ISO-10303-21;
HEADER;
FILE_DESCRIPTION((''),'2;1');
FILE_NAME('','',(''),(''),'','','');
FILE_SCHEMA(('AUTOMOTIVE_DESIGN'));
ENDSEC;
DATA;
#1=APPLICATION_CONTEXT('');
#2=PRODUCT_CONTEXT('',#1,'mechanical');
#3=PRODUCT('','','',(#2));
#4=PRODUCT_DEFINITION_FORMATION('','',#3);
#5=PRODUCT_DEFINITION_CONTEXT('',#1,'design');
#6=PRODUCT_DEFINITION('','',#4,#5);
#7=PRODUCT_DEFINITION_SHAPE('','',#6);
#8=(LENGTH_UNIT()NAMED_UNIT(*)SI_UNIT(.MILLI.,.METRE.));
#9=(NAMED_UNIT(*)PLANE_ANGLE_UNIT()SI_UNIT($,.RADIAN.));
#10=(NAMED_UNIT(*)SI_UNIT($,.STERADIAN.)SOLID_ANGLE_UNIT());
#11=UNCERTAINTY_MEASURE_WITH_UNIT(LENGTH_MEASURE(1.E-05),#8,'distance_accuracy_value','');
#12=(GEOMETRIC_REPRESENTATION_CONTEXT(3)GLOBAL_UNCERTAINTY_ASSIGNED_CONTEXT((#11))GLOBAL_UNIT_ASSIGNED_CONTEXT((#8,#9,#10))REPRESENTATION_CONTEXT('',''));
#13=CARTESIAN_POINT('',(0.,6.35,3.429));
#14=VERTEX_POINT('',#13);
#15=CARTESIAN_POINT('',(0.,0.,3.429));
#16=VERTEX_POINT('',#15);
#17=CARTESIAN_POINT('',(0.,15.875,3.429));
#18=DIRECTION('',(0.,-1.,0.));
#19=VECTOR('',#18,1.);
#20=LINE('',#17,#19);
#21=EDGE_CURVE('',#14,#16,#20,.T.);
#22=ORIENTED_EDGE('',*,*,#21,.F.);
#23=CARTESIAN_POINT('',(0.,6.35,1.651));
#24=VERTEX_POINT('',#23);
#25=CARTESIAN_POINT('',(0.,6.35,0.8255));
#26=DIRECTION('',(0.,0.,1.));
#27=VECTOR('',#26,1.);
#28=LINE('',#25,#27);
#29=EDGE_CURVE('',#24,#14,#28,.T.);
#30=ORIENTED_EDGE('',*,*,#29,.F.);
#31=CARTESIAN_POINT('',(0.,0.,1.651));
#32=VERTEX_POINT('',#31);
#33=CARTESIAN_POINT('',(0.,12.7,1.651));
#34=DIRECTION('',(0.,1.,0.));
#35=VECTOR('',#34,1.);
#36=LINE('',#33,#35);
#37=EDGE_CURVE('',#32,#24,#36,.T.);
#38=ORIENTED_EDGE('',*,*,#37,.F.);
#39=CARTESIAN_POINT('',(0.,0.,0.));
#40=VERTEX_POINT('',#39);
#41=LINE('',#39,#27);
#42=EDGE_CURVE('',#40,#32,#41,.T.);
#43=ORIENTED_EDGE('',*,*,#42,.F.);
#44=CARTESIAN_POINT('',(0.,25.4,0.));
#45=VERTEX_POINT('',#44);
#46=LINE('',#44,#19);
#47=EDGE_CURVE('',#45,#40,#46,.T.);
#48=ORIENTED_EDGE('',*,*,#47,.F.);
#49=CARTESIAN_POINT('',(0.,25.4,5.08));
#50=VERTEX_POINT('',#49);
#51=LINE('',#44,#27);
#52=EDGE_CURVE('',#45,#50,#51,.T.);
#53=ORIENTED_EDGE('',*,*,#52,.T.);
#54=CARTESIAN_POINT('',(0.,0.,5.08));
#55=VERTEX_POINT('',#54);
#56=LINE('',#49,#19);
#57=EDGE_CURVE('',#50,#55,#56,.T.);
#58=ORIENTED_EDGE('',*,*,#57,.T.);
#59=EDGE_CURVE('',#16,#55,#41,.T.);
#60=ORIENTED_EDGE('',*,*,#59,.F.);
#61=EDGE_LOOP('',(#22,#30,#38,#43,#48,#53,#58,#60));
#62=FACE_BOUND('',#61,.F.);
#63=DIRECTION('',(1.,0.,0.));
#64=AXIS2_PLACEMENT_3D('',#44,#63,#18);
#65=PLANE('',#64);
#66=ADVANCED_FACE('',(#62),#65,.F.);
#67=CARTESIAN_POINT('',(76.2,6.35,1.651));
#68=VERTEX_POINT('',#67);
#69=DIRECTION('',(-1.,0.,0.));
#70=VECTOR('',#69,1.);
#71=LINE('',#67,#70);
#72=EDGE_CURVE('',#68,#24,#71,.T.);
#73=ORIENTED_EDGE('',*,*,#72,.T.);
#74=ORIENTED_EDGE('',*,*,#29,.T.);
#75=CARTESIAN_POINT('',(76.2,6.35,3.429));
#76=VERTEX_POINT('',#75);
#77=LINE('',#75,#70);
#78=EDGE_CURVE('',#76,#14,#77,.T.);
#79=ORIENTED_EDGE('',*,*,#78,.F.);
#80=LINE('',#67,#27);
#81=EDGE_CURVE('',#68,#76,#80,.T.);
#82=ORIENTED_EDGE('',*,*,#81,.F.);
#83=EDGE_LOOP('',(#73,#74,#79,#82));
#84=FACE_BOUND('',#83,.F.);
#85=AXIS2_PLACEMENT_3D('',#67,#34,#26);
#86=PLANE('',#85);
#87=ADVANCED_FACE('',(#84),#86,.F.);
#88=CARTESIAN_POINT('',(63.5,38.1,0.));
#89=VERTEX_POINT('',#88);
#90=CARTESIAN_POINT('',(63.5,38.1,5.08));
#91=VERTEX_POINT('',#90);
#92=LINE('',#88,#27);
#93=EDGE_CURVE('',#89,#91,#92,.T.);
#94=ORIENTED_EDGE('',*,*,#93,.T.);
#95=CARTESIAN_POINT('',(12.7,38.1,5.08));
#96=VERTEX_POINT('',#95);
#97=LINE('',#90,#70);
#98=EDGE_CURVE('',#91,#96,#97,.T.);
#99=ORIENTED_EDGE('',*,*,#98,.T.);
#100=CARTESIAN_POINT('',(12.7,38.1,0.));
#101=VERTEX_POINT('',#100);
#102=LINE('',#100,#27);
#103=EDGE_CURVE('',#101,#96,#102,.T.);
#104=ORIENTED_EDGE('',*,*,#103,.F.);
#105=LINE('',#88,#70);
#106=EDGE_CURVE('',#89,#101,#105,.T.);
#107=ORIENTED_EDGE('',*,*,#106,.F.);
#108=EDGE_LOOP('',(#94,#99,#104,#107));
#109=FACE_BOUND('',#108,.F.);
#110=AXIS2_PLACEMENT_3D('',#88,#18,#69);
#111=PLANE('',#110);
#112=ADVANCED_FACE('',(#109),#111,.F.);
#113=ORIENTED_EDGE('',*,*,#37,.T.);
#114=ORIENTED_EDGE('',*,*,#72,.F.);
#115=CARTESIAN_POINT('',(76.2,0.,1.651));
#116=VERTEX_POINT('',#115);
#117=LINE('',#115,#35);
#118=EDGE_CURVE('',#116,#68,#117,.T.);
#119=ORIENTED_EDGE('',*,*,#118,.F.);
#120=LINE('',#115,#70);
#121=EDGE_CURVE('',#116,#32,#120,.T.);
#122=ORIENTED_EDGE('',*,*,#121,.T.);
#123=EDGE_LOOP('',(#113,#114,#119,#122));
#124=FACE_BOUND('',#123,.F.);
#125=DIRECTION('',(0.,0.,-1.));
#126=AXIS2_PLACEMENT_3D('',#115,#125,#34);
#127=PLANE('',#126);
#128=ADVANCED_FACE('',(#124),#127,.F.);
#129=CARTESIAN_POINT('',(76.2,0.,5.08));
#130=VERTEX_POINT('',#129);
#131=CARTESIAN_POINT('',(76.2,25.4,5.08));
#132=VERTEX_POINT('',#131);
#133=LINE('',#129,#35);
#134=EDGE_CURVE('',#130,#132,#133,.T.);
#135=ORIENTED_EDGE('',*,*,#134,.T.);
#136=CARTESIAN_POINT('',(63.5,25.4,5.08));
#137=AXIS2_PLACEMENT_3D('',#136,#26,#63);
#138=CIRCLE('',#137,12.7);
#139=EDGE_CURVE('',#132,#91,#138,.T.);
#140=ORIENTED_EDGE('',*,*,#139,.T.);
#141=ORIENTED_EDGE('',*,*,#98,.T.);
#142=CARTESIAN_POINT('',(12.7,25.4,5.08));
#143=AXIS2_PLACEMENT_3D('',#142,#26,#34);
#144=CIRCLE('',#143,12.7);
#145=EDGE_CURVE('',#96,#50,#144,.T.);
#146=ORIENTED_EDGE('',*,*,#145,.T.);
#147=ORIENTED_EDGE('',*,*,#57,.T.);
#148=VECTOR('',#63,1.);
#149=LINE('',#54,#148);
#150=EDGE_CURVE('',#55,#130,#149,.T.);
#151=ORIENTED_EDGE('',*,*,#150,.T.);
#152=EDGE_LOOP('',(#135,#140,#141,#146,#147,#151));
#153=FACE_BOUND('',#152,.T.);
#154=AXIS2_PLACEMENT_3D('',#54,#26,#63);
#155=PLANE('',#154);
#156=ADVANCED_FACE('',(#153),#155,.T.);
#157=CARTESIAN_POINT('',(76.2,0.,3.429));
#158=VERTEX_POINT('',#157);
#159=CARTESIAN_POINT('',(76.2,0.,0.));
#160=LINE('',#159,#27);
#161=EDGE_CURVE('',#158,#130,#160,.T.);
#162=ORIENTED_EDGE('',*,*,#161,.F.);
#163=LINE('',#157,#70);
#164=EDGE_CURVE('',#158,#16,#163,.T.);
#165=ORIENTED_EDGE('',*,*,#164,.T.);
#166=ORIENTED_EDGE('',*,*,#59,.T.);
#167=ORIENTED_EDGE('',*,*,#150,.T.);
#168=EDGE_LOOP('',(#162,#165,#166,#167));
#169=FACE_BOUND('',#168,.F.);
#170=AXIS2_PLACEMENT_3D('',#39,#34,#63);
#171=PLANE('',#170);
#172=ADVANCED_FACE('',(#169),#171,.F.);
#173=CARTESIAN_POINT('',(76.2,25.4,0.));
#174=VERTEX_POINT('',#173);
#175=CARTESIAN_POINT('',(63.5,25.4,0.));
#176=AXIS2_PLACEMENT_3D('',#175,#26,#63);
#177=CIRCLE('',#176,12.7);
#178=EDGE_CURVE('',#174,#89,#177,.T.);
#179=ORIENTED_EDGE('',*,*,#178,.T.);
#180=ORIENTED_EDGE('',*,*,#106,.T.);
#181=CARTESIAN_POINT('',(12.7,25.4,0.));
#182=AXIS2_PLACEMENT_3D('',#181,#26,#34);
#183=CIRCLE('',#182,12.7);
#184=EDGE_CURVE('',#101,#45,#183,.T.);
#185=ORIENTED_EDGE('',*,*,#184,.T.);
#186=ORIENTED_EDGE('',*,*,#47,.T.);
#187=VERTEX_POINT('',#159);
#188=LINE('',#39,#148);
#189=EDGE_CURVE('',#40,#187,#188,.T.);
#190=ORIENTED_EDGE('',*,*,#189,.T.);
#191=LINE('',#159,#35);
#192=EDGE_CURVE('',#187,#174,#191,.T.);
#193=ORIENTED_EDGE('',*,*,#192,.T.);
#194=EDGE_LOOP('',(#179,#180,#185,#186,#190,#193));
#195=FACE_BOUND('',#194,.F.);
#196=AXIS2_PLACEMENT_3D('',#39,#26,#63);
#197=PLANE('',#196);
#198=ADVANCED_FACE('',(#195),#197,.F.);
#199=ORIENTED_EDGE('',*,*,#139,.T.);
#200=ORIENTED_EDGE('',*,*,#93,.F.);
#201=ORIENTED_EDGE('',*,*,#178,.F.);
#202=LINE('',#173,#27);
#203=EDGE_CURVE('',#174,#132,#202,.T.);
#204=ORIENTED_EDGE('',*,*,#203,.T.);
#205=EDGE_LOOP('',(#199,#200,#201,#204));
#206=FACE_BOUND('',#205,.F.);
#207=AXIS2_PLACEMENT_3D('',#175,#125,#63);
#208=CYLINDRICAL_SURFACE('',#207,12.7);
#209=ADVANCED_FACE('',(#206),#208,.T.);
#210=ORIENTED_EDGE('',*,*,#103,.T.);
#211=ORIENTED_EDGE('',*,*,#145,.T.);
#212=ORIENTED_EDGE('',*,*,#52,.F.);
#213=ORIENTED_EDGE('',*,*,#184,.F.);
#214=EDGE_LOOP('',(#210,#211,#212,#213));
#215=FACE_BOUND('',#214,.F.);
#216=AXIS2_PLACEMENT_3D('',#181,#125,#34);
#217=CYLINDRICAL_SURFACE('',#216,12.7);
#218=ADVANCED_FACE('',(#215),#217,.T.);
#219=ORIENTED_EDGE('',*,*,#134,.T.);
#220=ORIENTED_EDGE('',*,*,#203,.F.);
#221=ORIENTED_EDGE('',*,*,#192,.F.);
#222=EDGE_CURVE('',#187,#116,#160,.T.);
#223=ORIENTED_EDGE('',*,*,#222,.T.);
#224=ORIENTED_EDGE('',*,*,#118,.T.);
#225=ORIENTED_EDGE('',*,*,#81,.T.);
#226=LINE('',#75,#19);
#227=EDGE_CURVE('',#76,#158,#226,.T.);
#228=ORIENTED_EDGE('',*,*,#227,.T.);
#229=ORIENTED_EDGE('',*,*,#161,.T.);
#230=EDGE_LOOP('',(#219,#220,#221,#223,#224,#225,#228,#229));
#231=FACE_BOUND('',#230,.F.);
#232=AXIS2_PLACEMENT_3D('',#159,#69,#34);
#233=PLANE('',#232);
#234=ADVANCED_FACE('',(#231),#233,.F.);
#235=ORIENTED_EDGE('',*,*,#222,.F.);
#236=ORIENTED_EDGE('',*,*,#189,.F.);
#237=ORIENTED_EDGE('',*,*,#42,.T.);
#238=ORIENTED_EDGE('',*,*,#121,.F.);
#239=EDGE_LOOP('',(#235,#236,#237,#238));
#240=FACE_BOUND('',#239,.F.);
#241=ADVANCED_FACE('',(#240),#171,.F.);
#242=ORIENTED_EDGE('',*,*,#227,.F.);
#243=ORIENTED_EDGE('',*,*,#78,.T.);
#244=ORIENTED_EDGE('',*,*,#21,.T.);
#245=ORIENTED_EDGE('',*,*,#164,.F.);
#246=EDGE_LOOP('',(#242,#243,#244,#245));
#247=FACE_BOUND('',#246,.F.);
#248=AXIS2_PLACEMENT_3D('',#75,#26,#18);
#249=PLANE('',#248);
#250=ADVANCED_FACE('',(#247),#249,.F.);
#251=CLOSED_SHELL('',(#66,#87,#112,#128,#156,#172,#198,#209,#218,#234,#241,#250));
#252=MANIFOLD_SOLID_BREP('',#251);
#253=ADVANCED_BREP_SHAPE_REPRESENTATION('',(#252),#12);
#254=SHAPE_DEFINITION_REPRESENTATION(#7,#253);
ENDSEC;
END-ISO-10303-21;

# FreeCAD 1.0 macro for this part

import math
import FreeCAD as App
import Part
import Sketcher
Q = App.Units.Quantity

doc = App.newDocument("Part")
body = doc.addObject("PartDesign::Body", "Body")

sketch1 = body.newObject("Sketcher::SketchObject", "Sketch")
sketch1.AttachmentSupport = (doc.getObject("XY_Plane"), [""])
sketch1.MapMode = "FlatFace"
sketch1.addGeometry([
    Part.LineSegment(App.Vector(0, 25.4, 0), App.Vector(0, 0, 0)),
    Part.LineSegment(App.Vector(0, 0, 0), App.Vector(76.2, 0, 0)),
    Part.LineSegment(App.Vector(76.2, 0, 0), App.Vector(76.2, 25.4, 0)),
    Part.ArcOfCircle(Part.Circle(App.Vector(63.5, 25.4, 0), App.Vector(0, 0, 1), 12.7), math.radians(0), math.radians(90)),
    Part.LineSegment(App.Vector(63.5, 38.1, 0), App.Vector(12.7, 38.1, 0)),
    Part.ArcOfCircle(Part.Circle(App.Vector(12.7, 25.4, 0), App.Vector(0, 0, 1), 12.7), math.radians(90), math.radians(180)),
], False)
sketch1.addConstraint([
    Sketcher.Constraint("Coincident", 0, 2, 1, 1),
    Sketcher.Constraint("Coincident", 1, 2, 2, 1),
    Sketcher.Constraint("Tangent", 2, 2, 3, 1),
    Sketcher.Constraint("Tangent", 3, 2, 4, 1),
    Sketcher.Constraint("Tangent", 4, 2, 5, 1),
    Sketcher.Constraint("Tangent", 5, 2, 0, 1),
    Sketcher.Constraint("Vertical", 0),
    Sketcher.Constraint("Horizontal", 1),
    Sketcher.Constraint("Vertical", 2),
    Sketcher.Constraint("Horizontal", 4),
    Sketcher.Constraint("Coincident", 0, 2, -1, 1),
    Sketcher.Constraint("Equal", 3, 5),
    Sketcher.Constraint("Radius", 3, Q("0.5 in")),
    Sketcher.Constraint("DistanceX", 1, 1, 1, 2, Q("3 in")),
    Sketcher.Constraint("DistanceY", -1, 1, 3, 2, Q("1.5 in")),
])
pad1 = body.newObject("PartDesign::Pad", "Pad")
pad1.Profile = sketch1
pad1.Length = Q("0.2 in")

sketch2 = body.newObject("Sketcher::SketchObject", "Sketch001")
sketch2.AttachmentSupport = (doc.getObject("YZ_Plane"), [""])
sketch2.MapMode = "FlatFace"
sketch2.AttachmentOffset = App.Placement(App.Vector(0, 0, 3 * 25.4), App.Rotation())
sketch2.addGeometry([
    Part.LineSegment(App.Vector(0, 3.429, 0), App.Vector(0, 1.651, 0)),
    Part.LineSegment(App.Vector(0, 1.651, 0), App.Vector(6.35, 1.651, 0)),
    Part.LineSegment(App.Vector(6.35, 1.651, 0), App.Vector(6.35, 3.429, 0)),
    Part.LineSegment(App.Vector(6.35, 3.429, 0), App.Vector(0, 3.429, 0)),
], False)
sketch2.addConstraint([
    Sketcher.Constraint("Coincident", 0, 2, 1, 1),
    Sketcher.Constraint("Coincident", 1, 2, 2, 1),
    Sketcher.Constraint("Coincident", 2, 2, 3, 1),
    Sketcher.Constraint("Coincident", 3, 2, 0, 1),
    Sketcher.Constraint("Vertical", 0),
    Sketcher.Constraint("Horizontal", 1),
    Sketcher.Constraint("Vertical", 2),
    Sketcher.Constraint("Horizontal", 3),
    Sketcher.Constraint("PointOnObject", 0, 2, -2),
    Sketcher.Constraint("DistanceX", 1, 1, 1, 2, Q("0.25 in")),
    Sketcher.Constraint("DistanceY", 0, 2, 0, 1, Q("0.07 in")),
    Sketcher.Constraint("DistanceY", -1, 1, 0, 2, Q("0.065 in")),
])
pocket1 = body.newObject("PartDesign::Pocket", "Pocket")
pocket1.Profile = sketch2
pocket1.Length = Q("4 in")

doc.recompute()
